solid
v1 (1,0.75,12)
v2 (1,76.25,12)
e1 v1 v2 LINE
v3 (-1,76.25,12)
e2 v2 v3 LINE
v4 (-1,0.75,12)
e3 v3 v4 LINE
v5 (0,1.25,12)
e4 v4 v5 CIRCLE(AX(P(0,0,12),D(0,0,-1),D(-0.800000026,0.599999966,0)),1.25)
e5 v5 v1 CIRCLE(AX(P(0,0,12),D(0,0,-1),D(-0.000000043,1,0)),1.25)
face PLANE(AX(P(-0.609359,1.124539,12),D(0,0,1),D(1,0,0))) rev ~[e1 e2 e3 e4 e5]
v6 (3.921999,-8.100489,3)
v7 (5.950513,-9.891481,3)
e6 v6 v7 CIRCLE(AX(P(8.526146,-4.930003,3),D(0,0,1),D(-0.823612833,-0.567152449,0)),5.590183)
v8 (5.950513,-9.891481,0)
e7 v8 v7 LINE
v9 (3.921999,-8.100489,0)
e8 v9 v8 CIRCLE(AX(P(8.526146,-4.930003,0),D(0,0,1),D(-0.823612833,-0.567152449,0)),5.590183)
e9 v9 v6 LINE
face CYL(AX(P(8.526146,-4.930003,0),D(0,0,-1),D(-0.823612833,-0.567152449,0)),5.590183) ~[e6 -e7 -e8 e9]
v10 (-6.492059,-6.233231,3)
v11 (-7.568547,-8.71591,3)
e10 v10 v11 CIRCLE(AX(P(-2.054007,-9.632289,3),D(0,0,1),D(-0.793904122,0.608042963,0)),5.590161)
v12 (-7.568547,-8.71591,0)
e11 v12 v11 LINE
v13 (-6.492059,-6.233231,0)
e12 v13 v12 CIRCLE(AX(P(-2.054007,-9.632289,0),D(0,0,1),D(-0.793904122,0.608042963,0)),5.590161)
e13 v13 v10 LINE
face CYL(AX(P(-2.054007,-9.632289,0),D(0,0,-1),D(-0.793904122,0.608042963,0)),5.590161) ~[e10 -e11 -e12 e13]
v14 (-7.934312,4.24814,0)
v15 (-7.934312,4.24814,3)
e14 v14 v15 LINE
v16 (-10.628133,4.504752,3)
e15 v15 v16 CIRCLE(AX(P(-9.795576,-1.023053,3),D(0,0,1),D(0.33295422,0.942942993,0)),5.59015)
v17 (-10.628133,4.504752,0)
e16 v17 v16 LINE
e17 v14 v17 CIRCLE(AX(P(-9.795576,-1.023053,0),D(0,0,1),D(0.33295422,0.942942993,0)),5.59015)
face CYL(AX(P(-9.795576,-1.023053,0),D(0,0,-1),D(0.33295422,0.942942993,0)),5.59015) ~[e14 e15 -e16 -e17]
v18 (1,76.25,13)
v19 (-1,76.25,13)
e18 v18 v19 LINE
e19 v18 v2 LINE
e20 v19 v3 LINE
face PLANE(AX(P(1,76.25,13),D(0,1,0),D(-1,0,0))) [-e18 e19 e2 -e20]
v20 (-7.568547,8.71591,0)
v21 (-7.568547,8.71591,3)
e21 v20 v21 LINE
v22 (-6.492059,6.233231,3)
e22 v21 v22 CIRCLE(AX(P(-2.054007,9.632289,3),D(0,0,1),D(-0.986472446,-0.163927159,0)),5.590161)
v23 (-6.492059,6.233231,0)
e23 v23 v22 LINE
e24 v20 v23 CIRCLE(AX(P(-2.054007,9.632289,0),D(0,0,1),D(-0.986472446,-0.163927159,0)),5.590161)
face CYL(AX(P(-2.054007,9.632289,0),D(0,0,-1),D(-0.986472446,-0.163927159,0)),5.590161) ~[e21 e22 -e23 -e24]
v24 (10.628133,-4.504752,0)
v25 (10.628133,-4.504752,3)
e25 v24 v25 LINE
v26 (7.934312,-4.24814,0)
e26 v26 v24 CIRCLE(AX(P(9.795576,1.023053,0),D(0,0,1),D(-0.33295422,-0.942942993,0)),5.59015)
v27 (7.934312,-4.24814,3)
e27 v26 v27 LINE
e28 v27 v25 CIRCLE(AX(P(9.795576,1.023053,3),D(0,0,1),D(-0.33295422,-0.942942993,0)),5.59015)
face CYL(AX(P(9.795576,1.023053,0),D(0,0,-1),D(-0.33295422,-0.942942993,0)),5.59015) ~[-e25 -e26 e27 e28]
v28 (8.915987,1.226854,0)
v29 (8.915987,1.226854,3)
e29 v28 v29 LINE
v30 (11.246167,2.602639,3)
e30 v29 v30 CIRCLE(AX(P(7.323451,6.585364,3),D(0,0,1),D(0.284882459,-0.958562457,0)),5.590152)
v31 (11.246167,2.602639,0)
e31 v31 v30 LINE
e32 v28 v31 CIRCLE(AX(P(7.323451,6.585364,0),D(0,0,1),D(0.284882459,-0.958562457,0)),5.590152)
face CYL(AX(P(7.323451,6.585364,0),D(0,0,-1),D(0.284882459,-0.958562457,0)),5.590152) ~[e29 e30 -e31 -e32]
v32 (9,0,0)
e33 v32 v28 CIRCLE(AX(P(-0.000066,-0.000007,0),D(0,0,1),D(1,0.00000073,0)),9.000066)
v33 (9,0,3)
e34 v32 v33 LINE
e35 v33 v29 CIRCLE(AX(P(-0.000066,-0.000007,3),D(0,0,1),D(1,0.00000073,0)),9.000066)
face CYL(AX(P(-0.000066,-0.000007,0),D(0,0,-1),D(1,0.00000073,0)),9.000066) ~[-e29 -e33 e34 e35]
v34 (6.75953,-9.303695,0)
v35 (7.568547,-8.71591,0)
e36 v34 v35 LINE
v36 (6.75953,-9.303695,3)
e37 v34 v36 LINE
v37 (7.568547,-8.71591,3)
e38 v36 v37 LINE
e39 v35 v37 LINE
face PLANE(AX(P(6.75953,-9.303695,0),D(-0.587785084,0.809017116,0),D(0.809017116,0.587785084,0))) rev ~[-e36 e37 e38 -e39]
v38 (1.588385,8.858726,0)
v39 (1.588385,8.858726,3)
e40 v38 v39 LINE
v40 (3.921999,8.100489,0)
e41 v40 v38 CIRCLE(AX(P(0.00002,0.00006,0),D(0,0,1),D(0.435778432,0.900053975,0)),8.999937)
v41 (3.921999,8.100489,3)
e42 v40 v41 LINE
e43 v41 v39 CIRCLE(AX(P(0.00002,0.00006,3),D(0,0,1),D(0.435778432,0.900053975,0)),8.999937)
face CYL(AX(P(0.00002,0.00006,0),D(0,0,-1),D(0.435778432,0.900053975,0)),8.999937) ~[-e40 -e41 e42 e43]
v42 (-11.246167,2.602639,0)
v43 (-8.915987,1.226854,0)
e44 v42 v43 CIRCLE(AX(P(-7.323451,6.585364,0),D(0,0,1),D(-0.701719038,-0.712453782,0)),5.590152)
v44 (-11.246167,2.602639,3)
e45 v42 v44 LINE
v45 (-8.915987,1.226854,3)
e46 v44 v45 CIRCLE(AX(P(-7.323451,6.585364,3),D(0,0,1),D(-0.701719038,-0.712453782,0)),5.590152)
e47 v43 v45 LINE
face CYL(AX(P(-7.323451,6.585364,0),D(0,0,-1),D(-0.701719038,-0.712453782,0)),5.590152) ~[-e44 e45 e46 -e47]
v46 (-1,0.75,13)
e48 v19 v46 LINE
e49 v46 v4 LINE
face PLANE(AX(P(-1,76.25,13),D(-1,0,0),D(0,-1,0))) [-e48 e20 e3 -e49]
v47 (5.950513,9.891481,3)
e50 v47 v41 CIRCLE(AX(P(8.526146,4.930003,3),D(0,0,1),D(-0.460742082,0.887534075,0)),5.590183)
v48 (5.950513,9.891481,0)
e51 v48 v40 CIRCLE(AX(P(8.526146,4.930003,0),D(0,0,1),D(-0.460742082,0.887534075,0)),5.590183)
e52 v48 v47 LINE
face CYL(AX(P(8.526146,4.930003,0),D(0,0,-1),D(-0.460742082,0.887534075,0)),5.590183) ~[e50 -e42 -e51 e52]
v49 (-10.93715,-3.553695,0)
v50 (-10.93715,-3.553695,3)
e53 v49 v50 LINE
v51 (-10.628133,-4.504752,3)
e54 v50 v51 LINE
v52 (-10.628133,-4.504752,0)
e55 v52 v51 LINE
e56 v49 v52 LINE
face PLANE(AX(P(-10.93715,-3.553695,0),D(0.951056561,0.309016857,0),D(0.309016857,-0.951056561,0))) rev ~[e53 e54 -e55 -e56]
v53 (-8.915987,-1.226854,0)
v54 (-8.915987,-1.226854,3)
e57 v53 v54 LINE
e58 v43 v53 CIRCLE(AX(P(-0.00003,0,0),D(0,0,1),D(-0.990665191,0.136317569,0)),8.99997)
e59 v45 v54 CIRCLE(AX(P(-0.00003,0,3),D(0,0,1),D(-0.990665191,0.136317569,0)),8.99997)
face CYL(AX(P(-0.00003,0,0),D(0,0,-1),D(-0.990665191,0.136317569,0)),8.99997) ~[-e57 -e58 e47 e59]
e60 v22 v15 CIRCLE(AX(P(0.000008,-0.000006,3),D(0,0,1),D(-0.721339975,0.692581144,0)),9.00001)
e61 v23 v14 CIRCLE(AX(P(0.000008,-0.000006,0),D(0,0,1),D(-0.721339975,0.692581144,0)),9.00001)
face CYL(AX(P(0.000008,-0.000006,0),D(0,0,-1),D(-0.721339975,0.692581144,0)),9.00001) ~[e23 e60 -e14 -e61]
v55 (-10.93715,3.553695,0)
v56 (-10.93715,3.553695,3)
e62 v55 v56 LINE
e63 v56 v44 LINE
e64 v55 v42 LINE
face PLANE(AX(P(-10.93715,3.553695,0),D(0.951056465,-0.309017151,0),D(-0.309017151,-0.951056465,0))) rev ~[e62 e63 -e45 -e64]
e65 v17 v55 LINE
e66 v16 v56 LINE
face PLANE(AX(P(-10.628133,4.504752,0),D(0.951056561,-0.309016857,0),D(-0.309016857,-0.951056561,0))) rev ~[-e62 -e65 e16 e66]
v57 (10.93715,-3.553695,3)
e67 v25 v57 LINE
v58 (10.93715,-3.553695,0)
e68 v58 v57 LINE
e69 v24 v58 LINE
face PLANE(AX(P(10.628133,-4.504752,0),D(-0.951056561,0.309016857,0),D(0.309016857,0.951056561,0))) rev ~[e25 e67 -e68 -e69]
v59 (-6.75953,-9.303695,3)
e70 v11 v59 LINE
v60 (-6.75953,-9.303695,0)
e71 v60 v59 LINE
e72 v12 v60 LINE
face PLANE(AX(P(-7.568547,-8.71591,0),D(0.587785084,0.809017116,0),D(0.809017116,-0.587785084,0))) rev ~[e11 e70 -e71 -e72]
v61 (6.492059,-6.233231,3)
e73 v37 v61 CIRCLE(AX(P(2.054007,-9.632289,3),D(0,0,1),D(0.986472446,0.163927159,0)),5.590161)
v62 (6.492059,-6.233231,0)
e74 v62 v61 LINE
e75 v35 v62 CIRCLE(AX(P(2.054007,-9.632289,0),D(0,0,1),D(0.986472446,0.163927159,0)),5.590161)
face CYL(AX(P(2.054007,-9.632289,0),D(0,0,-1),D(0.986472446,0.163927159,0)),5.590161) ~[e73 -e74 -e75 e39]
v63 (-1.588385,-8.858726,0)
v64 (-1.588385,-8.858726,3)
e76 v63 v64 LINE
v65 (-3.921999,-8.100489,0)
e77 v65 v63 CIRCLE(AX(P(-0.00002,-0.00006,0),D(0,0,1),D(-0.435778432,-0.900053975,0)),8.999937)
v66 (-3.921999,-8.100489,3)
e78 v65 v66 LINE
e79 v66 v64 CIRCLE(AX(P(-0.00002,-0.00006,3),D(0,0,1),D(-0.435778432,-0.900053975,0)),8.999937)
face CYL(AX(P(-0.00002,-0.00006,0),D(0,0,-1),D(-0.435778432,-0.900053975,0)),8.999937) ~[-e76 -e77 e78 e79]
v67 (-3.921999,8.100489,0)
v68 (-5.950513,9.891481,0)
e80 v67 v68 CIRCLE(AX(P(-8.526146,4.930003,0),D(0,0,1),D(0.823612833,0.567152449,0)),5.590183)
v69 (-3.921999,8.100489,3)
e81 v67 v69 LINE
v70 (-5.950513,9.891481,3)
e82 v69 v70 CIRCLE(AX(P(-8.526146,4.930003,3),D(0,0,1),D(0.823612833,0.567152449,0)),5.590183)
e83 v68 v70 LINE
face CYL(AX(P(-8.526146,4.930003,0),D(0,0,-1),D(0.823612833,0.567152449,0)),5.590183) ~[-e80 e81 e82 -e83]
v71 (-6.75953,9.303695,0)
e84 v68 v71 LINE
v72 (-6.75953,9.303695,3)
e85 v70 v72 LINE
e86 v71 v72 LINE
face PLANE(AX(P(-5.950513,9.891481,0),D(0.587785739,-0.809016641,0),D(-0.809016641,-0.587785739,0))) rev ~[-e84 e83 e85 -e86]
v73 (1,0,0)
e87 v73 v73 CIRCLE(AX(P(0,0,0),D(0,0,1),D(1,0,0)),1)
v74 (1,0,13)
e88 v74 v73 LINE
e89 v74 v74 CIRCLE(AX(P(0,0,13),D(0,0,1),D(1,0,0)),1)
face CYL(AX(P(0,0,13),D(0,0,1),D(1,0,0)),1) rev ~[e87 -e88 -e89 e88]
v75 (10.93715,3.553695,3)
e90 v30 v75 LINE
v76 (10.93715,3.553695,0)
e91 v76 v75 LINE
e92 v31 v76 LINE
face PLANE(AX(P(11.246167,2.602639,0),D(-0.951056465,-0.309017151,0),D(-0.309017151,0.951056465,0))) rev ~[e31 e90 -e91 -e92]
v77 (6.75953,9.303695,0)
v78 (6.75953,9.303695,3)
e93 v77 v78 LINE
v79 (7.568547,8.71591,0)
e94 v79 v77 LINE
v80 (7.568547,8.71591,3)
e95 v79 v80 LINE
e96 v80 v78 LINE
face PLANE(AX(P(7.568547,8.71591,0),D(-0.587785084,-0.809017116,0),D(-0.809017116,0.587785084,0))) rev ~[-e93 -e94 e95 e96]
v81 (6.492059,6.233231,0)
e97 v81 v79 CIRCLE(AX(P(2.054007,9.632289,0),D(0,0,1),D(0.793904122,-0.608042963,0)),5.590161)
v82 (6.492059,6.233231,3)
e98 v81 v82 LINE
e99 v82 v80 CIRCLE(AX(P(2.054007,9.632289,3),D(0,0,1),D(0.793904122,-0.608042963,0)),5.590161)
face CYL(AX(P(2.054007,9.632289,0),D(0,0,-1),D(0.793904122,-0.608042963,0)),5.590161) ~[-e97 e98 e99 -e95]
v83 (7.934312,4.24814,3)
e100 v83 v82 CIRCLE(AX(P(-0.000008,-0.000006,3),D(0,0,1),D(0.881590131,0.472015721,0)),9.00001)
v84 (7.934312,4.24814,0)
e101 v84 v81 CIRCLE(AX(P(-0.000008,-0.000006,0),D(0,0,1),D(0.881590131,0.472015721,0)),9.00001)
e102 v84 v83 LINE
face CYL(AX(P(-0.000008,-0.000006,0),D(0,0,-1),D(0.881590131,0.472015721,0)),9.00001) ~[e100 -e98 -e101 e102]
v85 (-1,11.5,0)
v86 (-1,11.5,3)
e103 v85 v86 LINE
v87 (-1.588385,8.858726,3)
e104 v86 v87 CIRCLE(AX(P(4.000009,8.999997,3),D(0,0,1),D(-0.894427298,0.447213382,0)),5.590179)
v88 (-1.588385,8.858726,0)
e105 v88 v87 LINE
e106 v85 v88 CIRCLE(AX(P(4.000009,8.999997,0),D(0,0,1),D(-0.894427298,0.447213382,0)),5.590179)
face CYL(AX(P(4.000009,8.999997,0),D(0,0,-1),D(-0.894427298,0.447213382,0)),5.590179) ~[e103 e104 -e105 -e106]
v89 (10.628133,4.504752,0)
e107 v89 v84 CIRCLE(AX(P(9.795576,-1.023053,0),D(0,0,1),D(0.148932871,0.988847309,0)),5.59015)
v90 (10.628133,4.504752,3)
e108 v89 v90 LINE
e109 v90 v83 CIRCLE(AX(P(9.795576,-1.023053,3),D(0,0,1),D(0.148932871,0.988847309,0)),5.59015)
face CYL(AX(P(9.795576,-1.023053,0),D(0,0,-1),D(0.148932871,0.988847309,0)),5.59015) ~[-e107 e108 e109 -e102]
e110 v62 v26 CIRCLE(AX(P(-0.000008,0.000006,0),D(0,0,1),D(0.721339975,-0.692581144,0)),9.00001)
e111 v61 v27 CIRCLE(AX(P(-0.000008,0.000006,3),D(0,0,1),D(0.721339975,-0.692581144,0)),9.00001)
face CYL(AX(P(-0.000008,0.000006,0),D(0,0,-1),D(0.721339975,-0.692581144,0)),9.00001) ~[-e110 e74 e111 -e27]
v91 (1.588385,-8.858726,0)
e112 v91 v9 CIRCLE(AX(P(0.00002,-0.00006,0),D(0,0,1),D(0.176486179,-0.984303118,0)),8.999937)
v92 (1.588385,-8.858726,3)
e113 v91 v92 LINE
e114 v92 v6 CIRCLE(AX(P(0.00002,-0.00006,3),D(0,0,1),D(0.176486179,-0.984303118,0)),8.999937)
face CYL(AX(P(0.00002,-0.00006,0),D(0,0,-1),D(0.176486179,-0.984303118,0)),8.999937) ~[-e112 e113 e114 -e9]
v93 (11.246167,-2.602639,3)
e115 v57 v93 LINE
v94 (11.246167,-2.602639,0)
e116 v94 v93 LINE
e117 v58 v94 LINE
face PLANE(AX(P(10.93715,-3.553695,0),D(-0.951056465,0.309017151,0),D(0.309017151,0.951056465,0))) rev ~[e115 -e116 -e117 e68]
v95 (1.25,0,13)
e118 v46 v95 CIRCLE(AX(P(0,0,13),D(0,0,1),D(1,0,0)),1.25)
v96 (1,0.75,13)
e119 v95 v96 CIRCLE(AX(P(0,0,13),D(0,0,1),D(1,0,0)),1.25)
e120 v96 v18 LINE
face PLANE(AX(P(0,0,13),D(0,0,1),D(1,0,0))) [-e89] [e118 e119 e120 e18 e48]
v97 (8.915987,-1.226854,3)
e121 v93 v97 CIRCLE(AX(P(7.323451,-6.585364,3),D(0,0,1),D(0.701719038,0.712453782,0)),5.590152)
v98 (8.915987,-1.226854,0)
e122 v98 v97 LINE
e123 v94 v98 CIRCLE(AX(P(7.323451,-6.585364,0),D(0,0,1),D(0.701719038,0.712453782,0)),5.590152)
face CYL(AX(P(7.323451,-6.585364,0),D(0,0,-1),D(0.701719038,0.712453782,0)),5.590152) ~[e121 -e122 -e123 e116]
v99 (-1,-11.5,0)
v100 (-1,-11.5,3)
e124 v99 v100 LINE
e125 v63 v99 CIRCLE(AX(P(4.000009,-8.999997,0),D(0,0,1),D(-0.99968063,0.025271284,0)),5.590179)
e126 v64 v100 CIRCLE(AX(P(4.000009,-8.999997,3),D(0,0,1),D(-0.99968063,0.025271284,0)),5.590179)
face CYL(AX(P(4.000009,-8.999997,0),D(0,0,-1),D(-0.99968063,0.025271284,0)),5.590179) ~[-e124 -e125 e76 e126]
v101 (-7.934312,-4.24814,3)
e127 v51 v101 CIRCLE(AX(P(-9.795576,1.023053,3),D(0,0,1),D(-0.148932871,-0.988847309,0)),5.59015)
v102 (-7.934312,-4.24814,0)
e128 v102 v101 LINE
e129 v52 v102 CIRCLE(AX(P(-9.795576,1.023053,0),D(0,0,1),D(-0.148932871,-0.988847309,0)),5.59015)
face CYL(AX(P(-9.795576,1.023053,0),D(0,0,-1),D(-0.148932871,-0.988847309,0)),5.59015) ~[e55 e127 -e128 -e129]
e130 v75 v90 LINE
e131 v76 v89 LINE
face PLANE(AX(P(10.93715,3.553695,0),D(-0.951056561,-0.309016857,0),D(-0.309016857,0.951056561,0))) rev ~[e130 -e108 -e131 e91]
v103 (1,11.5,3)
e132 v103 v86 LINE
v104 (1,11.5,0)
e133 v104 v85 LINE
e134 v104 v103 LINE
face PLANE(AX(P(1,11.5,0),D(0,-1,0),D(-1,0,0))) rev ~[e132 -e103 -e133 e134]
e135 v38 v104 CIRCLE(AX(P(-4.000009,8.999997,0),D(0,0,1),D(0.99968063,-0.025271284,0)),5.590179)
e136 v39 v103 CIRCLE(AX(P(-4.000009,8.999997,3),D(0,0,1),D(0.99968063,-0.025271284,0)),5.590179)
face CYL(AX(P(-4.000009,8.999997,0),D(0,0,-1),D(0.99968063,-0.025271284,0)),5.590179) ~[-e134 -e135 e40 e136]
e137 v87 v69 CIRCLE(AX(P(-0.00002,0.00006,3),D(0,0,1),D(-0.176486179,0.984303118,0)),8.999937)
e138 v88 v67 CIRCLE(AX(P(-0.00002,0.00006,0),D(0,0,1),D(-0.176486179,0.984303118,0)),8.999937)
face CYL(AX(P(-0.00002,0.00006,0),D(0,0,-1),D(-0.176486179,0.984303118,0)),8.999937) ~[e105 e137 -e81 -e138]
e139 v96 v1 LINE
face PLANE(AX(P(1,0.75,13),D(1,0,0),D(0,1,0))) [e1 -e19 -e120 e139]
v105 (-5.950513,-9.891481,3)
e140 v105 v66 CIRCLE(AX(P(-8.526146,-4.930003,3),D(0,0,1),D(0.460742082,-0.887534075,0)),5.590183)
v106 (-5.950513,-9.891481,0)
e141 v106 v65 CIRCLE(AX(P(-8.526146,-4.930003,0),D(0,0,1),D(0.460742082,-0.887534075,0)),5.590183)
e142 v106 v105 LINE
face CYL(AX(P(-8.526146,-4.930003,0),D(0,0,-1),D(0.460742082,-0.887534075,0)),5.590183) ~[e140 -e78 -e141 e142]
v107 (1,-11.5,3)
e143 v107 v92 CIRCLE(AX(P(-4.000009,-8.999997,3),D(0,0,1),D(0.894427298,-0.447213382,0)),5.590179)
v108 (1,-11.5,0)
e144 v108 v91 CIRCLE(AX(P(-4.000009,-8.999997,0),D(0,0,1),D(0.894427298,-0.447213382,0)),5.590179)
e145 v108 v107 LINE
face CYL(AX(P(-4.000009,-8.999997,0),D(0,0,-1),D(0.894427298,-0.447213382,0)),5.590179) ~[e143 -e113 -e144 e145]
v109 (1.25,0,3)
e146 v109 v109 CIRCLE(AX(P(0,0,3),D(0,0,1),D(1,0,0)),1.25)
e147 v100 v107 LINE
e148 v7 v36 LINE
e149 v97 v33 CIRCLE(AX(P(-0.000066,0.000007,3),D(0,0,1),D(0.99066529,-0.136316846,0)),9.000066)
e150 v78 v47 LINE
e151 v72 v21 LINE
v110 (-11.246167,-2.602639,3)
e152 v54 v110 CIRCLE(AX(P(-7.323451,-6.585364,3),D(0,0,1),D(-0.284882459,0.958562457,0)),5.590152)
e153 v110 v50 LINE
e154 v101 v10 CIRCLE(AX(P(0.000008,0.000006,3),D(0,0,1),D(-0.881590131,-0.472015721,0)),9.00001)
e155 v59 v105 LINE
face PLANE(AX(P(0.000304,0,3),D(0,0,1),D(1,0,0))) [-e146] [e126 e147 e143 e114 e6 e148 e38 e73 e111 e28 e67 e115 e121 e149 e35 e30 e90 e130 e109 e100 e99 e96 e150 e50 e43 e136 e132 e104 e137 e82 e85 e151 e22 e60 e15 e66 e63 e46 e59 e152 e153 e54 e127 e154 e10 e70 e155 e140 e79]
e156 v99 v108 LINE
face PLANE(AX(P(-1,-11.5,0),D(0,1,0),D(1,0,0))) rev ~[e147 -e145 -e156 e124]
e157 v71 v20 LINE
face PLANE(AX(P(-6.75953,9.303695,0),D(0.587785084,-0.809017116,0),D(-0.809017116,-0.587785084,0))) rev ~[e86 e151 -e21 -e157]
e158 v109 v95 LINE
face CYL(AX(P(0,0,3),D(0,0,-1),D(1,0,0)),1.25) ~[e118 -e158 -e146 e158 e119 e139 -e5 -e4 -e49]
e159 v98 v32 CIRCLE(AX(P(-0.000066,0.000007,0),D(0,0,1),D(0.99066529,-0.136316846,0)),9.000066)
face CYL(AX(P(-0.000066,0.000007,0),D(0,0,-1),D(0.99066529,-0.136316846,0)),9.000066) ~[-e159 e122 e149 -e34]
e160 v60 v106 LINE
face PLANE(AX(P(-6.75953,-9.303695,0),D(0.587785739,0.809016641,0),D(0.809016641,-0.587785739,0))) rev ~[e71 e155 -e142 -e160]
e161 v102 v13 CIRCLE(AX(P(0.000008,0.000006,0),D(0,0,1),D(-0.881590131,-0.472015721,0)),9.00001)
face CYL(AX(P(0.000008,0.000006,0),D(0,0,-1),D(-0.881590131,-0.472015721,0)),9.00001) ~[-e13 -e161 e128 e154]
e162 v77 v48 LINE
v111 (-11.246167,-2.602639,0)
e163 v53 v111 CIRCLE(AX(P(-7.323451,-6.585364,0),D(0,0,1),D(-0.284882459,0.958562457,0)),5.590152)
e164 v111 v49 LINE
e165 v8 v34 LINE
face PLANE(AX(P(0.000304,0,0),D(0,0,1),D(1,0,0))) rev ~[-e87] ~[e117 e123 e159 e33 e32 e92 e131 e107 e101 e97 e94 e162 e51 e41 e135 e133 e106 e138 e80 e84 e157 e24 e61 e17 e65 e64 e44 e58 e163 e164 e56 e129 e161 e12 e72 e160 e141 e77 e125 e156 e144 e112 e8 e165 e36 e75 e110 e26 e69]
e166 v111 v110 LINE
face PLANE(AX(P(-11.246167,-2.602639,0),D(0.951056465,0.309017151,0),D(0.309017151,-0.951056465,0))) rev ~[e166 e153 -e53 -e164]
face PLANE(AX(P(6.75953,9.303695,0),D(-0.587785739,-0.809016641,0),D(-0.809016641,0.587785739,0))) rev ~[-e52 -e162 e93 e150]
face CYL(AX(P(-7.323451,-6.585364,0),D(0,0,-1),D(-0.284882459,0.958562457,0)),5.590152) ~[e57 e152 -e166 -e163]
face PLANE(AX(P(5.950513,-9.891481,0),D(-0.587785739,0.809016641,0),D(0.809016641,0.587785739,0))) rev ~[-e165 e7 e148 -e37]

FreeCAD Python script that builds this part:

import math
import FreeCAD as App
import Part
import Sketcher

V = App.Vector
Q = App.Units.Quantity

doc = App.newDocument("Part")
body = doc.addObject("PartDesign::Body", "Body")

# Sketch on XY plane
sketch1 = doc.addObject("Sketcher::SketchObject", "Sketch")
body.addObject(sketch1)
sketch1.AttachmentSupport = (doc.XY_Plane, [""])
sketch1.MapMode = "FlatFace"
sketch1.addGeometry(Part.ArcOfCircle(Part.Circle(V(-0.000066, 0.000007, 0), V(0, 0, 1), 9.000066), math.radians(-7.834774), math.radians(-0.000042)), False)
sketch1.addGeometry(Part.ArcOfCircle(Part.Circle(V(-0.000066, -0.000007, 0), V(0, 0, 1), 9.000066), math.radians(0.000042), math.radians(7.834774)), False)
sketch1.addGeometry(Part.ArcOfCircle(Part.Circle(V(7.323451, 6.585364, 0), V(0, 0, 1), 5.590152), math.radians(-73.448177), math.radians(-45.434914)), False)
sketch1.addGeometry(Part.LineSegment(V(11.246167, 2.602639, 0), V(10.93715, 3.553695, 0)), False)
sketch1.addGeometry(Part.LineSegment(V(10.93715, 3.553695, 0), V(10.628133, 4.504752, 0)), False)
sketch1.addGeometry(Part.ArcOfCircle(Part.Circle(V(9.795576, -1.023053, 0), V(0, 0, 1), 5.59015), math.radians(81.43491), math.radians(109.448183)), False)
sketch1.addGeometry(Part.ArcOfCircle(Part.Circle(V(-0.000008, -0.000006, 0), V(0, 0, 1), 9.00001), math.radians(28.165221), math.radians(43.834778)), False)
sketch1.addGeometry(Part.ArcOfCircle(Part.Circle(V(2.054007, 9.632289, 0), V(0, 0, 1), 5.590161), math.radians(-37.448131), math.radians(-9.434917)), False)
sketch1.addGeometry(Part.LineSegment(V(7.568547, 8.71591, 0), V(6.75953, 9.303695, 0)), False)
sketch1.addGeometry(Part.LineSegment(V(6.75953, 9.303695, 0), V(5.950513, 9.891481, 0)), False)
sketch1.addGeometry(Part.ArcOfCircle(Part.Circle(V(8.526146, 4.930003, 0), V(0, 0, 1), 5.590183), math.radians(117.435003), math.radians(145.448105)), False)
sketch1.addGeometry(Part.ArcOfCircle(Part.Circle(V(0.00002, 0.00006, 0), V(0, 0, 1), 8.999937), math.radians(64.165163), math.radians(79.834844)), False)
sketch1.addGeometry(Part.ArcOfCircle(Part.Circle(V(-4.000009, 8.999997, 0), V(0, 0, 1), 5.590179), math.radians(-1.448092), math.radians(26.565037)), False)
sketch1.addGeometry(Part.LineSegment(V(1, 11.5, 0), V(-1, 11.5, 0)), False)
sketch1.addGeometry(Part.ArcOfCircle(Part.Circle(V(4.000009, 8.999997, 0), V(0, 0, 1), 5.590179), math.radians(153.434963), math.radians(181.448092)), False)
sketch1.addGeometry(Part.ArcOfCircle(Part.Circle(V(-0.00002, 0.00006, 0), V(0, 0, 1), 8.999937), math.radians(100.165156), math.radians(115.834837)), False)
sketch1.addGeometry(Part.ArcOfCircle(Part.Circle(V(-8.526146, 4.930003, 0), V(0, 0, 1), 5.590183), math.radians(34.551895), math.radians(62.564997)), False)
sketch1.addGeometry(Part.LineSegment(V(-5.950513, 9.891481, 0), V(-6.75953, 9.303695, 0)), False)
sketch1.addGeometry(Part.LineSegment(V(-6.75953, 9.303695, 0), V(-7.568547, 8.71591, 0)), False)
sketch1.addGeometry(Part.ArcOfCircle(Part.Circle(V(-2.054007, 9.632289, 0), V(0, 0, 1), 5.590161), math.radians(-170.565083), math.radians(-142.551869)), False)
sketch1.addGeometry(Part.ArcOfCircle(Part.Circle(V(0.000008, -0.000006, 0), V(0, 0, 1), 9.00001), math.radians(136.165222), math.radians(151.834779)), False)
sketch1.addGeometry(Part.ArcOfCircle(Part.Circle(V(-9.795576, -1.023053, 0), V(0, 0, 1), 5.59015), math.radians(70.551817), math.radians(98.56509)), False)
sketch1.addGeometry(Part.LineSegment(V(-10.628133, 4.504752, 0), V(-10.93715, 3.553695, 0)), False)
sketch1.addGeometry(Part.LineSegment(V(-10.93715, 3.553695, 0), V(-11.246167, 2.602639, 0)), False)
sketch1.addGeometry(Part.ArcOfCircle(Part.Circle(V(-7.323451, 6.585364, 0), V(0, 0, 1), 5.590152), math.radians(-134.565086), math.radians(-106.551823)), False)
sketch1.addGeometry(Part.ArcOfCircle(Part.Circle(V(-0.00003, 0, 0), V(0, 0, 1), 8.99997), math.radians(172.165185), math.radians(187.834815)), False)
sketch1.addGeometry(Part.ArcOfCircle(Part.Circle(V(-7.323451, -6.585364, 0), V(0, 0, 1), 5.590152), math.radians(106.551823), math.radians(134.565086)), False)
sketch1.addGeometry(Part.LineSegment(V(-11.246167, -2.602639, 0), V(-10.93715, -3.553695, 0)), False)
sketch1.addGeometry(Part.LineSegment(V(-10.93715, -3.553695, 0), V(-10.628133, -4.504752, 0)), False)
sketch1.addGeometry(Part.ArcOfCircle(Part.Circle(V(-9.795576, 1.023053, 0), V(0, 0, 1), 5.59015), math.radians(-98.56509), math.radians(-70.551817)), False)
sketch1.addGeometry(Part.ArcOfCircle(Part.Circle(V(0.000008, 0.000006, 0), V(0, 0, 1), 9.00001), math.radians(-151.834779), math.radians(-136.165222)), False)
sketch1.addGeometry(Part.ArcOfCircle(Part.Circle(V(-2.054007, -9.632289, 0), V(0, 0, 1), 5.590161), math.radians(142.551869), math.radians(170.565083)), False)
sketch1.addGeometry(Part.LineSegment(V(-7.568547, -8.71591, 0), V(-6.75953, -9.303695, 0)), False)
sketch1.addGeometry(Part.LineSegment(V(-6.75953, -9.303695, 0), V(-5.950513, -9.891481, 0)), False)
sketch1.addGeometry(Part.ArcOfCircle(Part.Circle(V(-8.526146, -4.930003, 0), V(0, 0, 1), 5.590183), math.radians(-62.564997), math.radians(-34.551895)), False)
sketch1.addGeometry(Part.ArcOfCircle(Part.Circle(V(-0.00002, -0.00006, 0), V(0, 0, 1), 8.999937), math.radians(-115.834837), math.radians(-100.165156)), False)
sketch1.addGeometry(Part.ArcOfCircle(Part.Circle(V(4.000009, -8.999997, 0), V(0, 0, 1), 5.590179), math.radians(178.551908), math.radians(206.565037)), False)
sketch1.addGeometry(Part.LineSegment(V(-1, -11.5, 0), V(1, -11.5, 0)), False)
sketch1.addGeometry(Part.ArcOfCircle(Part.Circle(V(-4.000009, -8.999997, 0), V(0, 0, 1), 5.590179), math.radians(-26.565037), math.radians(1.448092)), False)
sketch1.addGeometry(Part.ArcOfCircle(Part.Circle(V(0.00002, -0.00006, 0), V(0, 0, 1), 8.999937), math.radians(-79.834844), math.radians(-64.165163)), False)
sketch1.addGeometry(Part.ArcOfCircle(Part.Circle(V(8.526146, -4.930003, 0), V(0, 0, 1), 5.590183), math.radians(-145.448105), math.radians(-117.435003)), False)
sketch1.addGeometry(Part.LineSegment(V(5.950513, -9.891481, 0), V(6.75953, -9.303695, 0)), False)
sketch1.addGeometry(Part.LineSegment(V(6.75953, -9.303695, 0), V(7.568547, -8.71591, 0)), False)
sketch1.addGeometry(Part.ArcOfCircle(Part.Circle(V(2.054007, -9.632289, 0), V(0, 0, 1), 5.590161), math.radians(9.434917), math.radians(37.448131)), False)
sketch1.addGeometry(Part.ArcOfCircle(Part.Circle(V(-0.000008, 0.000006, 0), V(0, 0, 1), 9.00001), math.radians(-43.834778), math.radians(-28.165221)), False)
sketch1.addGeometry(Part.ArcOfCircle(Part.Circle(V(9.795576, 1.023053, 0), V(0, 0, 1), 5.59015), math.radians(-109.448183), math.radians(-81.43491)), False)
sketch1.addGeometry(Part.LineSegment(V(10.628133, -4.504752, 0), V(10.93715, -3.553695, 0)), False)
sketch1.addGeometry(Part.LineSegment(V(10.93715, -3.553695, 0), V(11.246167, -2.602639, 0)), False)
sketch1.addGeometry(Part.ArcOfCircle(Part.Circle(V(7.323451, -6.585364, 0), V(0, 0, 1), 5.590152), math.radians(45.434914), math.radians(73.448177)), False)
sketch1.addConstraint(Sketcher.Constraint("Tangent", 0, 2, 1, 1))
sketch1.addConstraint(Sketcher.Constraint("Coincident", 1, 2, 2, 1))
sketch1.addConstraint(Sketcher.Constraint("Coincident", 2, 2, 3, 1))
sketch1.addConstraint(Sketcher.Constraint("Coincident", 3, 2, 4, 1))
sketch1.addConstraint(Sketcher.Constraint("Coincident", 4, 2, 5, 1))
sketch1.addConstraint(Sketcher.Constraint("Coincident", 5, 2, 6, 1))
sketch1.addConstraint(Sketcher.Constraint("Coincident", 6, 2, 7, 1))
sketch1.addConstraint(Sketcher.Constraint("Coincident", 7, 2, 8, 1))
sketch1.addConstraint(Sketcher.Constraint("Coincident", 8, 2, 9, 1))
sketch1.addConstraint(Sketcher.Constraint("Coincident", 9, 2, 10, 1))
sketch1.addConstraint(Sketcher.Constraint("Coincident", 10, 2, 11, 1))
sketch1.addConstraint(Sketcher.Constraint("Coincident", 11, 2, 12, 1))
sketch1.addConstraint(Sketcher.Constraint("Coincident", 12, 2, 13, 1))
sketch1.addConstraint(Sketcher.Constraint("Coincident", 13, 2, 14, 1))
sketch1.addConstraint(Sketcher.Constraint("Coincident", 14, 2, 15, 1))
sketch1.addConstraint(Sketcher.Constraint("Coincident", 15, 2, 16, 1))
sketch1.addConstraint(Sketcher.Constraint("Coincident", 16, 2, 17, 1))
sketch1.addConstraint(Sketcher.Constraint("Coincident", 17, 2, 18, 1))
sketch1.addConstraint(Sketcher.Constraint("Coincident", 18, 2, 19, 1))
sketch1.addConstraint(Sketcher.Constraint("Coincident", 19, 2, 20, 1))
sketch1.addConstraint(Sketcher.Constraint("Coincident", 20, 2, 21, 1))
sketch1.addConstraint(Sketcher.Constraint("Coincident", 21, 2, 22, 1))
sketch1.addConstraint(Sketcher.Constraint("Coincident", 22, 2, 23, 1))
sketch1.addConstraint(Sketcher.Constraint("Coincident", 23, 2, 24, 1))
sketch1.addConstraint(Sketcher.Constraint("Coincident", 24, 2, 25, 1))
sketch1.addConstraint(Sketcher.Constraint("Coincident", 25, 2, 26, 1))
sketch1.addConstraint(Sketcher.Constraint("Coincident", 26, 2, 27, 1))
sketch1.addConstraint(Sketcher.Constraint("Coincident", 27, 2, 28, 1))
sketch1.addConstraint(Sketcher.Constraint("Coincident", 28, 2, 29, 1))
sketch1.addConstraint(Sketcher.Constraint("Coincident", 29, 2, 30, 1))
sketch1.addConstraint(Sketcher.Constraint("Coincident", 30, 2, 31, 1))
sketch1.addConstraint(Sketcher.Constraint("Coincident", 31, 2, 32, 1))
sketch1.addConstraint(Sketcher.Constraint("Coincident", 32, 2, 33, 1))
sketch1.addConstraint(Sketcher.Constraint("Coincident", 33, 2, 34, 1))
sketch1.addConstraint(Sketcher.Constraint("Coincident", 34, 2, 35, 1))
sketch1.addConstraint(Sketcher.Constraint("Coincident", 35, 2, 36, 1))
sketch1.addConstraint(Sketcher.Constraint("Coincident", 36, 2, 37, 1))
sketch1.addConstraint(Sketcher.Constraint("Coincident", 37, 2, 38, 1))
sketch1.addConstraint(Sketcher.Constraint("Coincident", 38, 2, 39, 1))
sketch1.addConstraint(Sketcher.Constraint("Coincident", 39, 2, 40, 1))
sketch1.addConstraint(Sketcher.Constraint("Coincident", 40, 2, 41, 1))
sketch1.addConstraint(Sketcher.Constraint("Coincident", 41, 2, 42, 1))
sketch1.addConstraint(Sketcher.Constraint("Coincident", 42, 2, 43, 1))
sketch1.addConstraint(Sketcher.Constraint("Coincident", 43, 2, 44, 1))
sketch1.addConstraint(Sketcher.Constraint("Coincident", 44, 2, 45, 1))
sketch1.addConstraint(Sketcher.Constraint("Coincident", 45, 2, 46, 1))
sketch1.addConstraint(Sketcher.Constraint("Coincident", 46, 2, 47, 1))
sketch1.addConstraint(Sketcher.Constraint("Coincident", 47, 2, 48, 1))
sketch1.addConstraint(Sketcher.Constraint("Coincident", 48, 2, 0, 1))
sketch1.addConstraint(Sketcher.Constraint("Horizontal", 13))
sketch1.addConstraint(Sketcher.Constraint("Horizontal", 37))
sketch1.addConstraint(Sketcher.Constraint("Equal", 0, 1))
sketch1.addConstraint(Sketcher.Constraint("Equal", 12, 14))
sketch1.addConstraint(Sketcher.Constraint("Equal", 11, 15))
sketch1.addConstraint(Sketcher.Constraint("Equal", 10, 16))
sketch1.addConstraint(Sketcher.Constraint("Equal", 7, 19))
sketch1.addConstraint(Sketcher.Constraint("Equal", 6, 20))
sketch1.addConstraint(Sketcher.Constraint("Equal", 5, 21))
sketch1.addConstraint(Sketcher.Constraint("Equal", 2, 24))
sketch1.addConstraint(Sketcher.Constraint("Equal", 24, 26))
sketch1.addConstraint(Sketcher.Constraint("Equal", 21, 29))
sketch1.addConstraint(Sketcher.Constraint("Equal", 20, 30))
sketch1.addConstraint(Sketcher.Constraint("Equal", 19, 31))
sketch1.addConstraint(Sketcher.Constraint("Equal", 16, 34))
sketch1.addConstraint(Sketcher.Constraint("Equal", 15, 35))
sketch1.addConstraint(Sketcher.Constraint("Equal", 14, 36))
sketch1.addConstraint(Sketcher.Constraint("Equal", 36, 38))
sketch1.addConstraint(Sketcher.Constraint("Equal", 35, 39))
sketch1.addConstraint(Sketcher.Constraint("Equal", 34, 40))
sketch1.addConstraint(Sketcher.Constraint("Equal", 31, 43))
sketch1.addConstraint(Sketcher.Constraint("Equal", 30, 44))
sketch1.addConstraint(Sketcher.Constraint("Equal", 29, 45))
sketch1.addConstraint(Sketcher.Constraint("Equal", 26, 48))
sketch1.addConstraint(Sketcher.Constraint("Symmetric", 2, 3, 26, 3, -1, 1))
sketch1.addConstraint(Sketcher.Constraint("Symmetric", 5, 3, 29, 3, -1, 1))
sketch1.addConstraint(Sketcher.Constraint("Symmetric", 6, 3, 30, 3, -1, 1))
sketch1.addConstraint(Sketcher.Constraint("Symmetric", 7, 3, 31, 3, -1, 1))
sketch1.addConstraint(Sketcher.Constraint("Symmetric", 10, 3, 34, 3, -1, 1))
sketch1.addConstraint(Sketcher.Constraint("Symmetric", 11, 3, 35, 3, -1, 1))
sketch1.addConstraint(Sketcher.Constraint("Symmetric", 12, 3, 36, 3, -1, 1))
sketch1.addConstraint(Sketcher.Constraint("Symmetric", 14, 3, 38, 3, -1, 1))
sketch1.addConstraint(Sketcher.Constraint("Symmetric", 15, 3, 39, 3, -1, 1))
sketch1.addConstraint(Sketcher.Constraint("Symmetric", 16, 3, 40, 3, -1, 1))
sketch1.addConstraint(Sketcher.Constraint("Symmetric", 19, 3, 43, 3, -1, 1))
sketch1.addConstraint(Sketcher.Constraint("Symmetric", 20, 3, 44, 3, -1, 1))
sketch1.addConstraint(Sketcher.Constraint("Symmetric", 21, 3, 45, 3, -1, 1))
sketch1.addConstraint(Sketcher.Constraint("Symmetric", 24, 3, 48, 3, -1, 1))
sketch1.addConstraint(Sketcher.Constraint("Symmetric", 3, 2, 27, 2, -1, 1))
sketch1.addConstraint(Sketcher.Constraint("Symmetric", 8, 2, 32, 2, -1, 1))
sketch1.addConstraint(Sketcher.Constraint("Symmetric", 17, 2, 41, 2, -1, 1))
sketch1.addConstraint(Sketcher.Constraint("Symmetric", 22, 2, 46, 2, -1, 1))
sketch1.addConstraint(Sketcher.Constraint("Symmetric", 12, 3, 14, 3, -2))
sketch1.addConstraint(Sketcher.Constraint("Symmetric", 11, 3, 15, 3, -2))
sketch1.addConstraint(Sketcher.Constraint("Symmetric", 10, 3, 16, 3, -2))
sketch1.addConstraint(Sketcher.Constraint("Symmetric", 7, 3, 19, 3, -2))
sketch1.addConstraint(Sketcher.Constraint("Symmetric", 6, 3, 20, 3, -2))
sketch1.addConstraint(Sketcher.Constraint("Symmetric", 5, 3, 21, 3, -2))
sketch1.addConstraint(Sketcher.Constraint("Symmetric", 2, 3, 24, 3, -2))
sketch1.addConstraint(Sketcher.Constraint("Symmetric", 8, 2, 17, 2, -2))
sketch1.addConstraint(Sketcher.Constraint("Symmetric", 3, 2, 22, 2, -2))
sketch1.addConstraint(Sketcher.Constraint("PointOnObject", 25, 3, -1))
sketch1.addConstraint(Sketcher.Constraint("PointOnObject", 0, 2, -1))
sketch1.addConstraint(Sketcher.Constraint("Parallel", 3, 4))
sketch1.addConstraint(Sketcher.Constraint("Parallel", 8, 9))
sketch1.addConstraint(Sketcher.Constraint("Parallel", 17, 18))
sketch1.addConstraint(Sketcher.Constraint("Parallel", 22, 23))
sketch1.addConstraint(Sketcher.Constraint("Parallel", 4, 27))
sketch1.addConstraint(Sketcher.Constraint("Parallel", 27, 28))
sketch1.addConstraint(Sketcher.Constraint("Parallel", 9, 32))
sketch1.addConstraint(Sketcher.Constraint("Parallel", 32, 33))
sketch1.addConstraint(Sketcher.Constraint("Parallel", 18, 41))
sketch1.addConstraint(Sketcher.Constraint("Parallel", 41, 42))
sketch1.addConstraint(Sketcher.Constraint("Parallel", 23, 46))
sketch1.addConstraint(Sketcher.Constraint("Parallel", 46, 47))
sketch1.addConstraint(Sketcher.Constraint("Horizontal", 1, 3, 6, 3))
sketch1.addConstraint(Sketcher.Constraint("Horizontal", 0, 3, 30, 3))
sketch1.addConstraint(Sketcher.Constraint("Horizontal", 9, 2, 16, 2))
sketch1.addConstraint(Sketcher.Constraint("Horizontal", 4, 2, 21, 2))
sketch1.addConstraint(Sketcher.Constraint("Horizontal", 1, 2, 24, 2))
sketch1.addConstraint(Sketcher.Constraint("Vertical", 13, 2, 36, 2))
sketch1.addConstraint(Sketcher.Constraint("Equal", 3, 4))
sketch1.addConstraint(Sketcher.Constraint("Equal", 4, 8))
sketch1.addConstraint(Sketcher.Constraint("Equal", 8, 9))
sketch1.addConstraint(Sketcher.Constraint("DistanceX", 13, 2, 13, 1, 2.0))
sketch1.addConstraint(Sketcher.Constraint("Angle", 3, Q("108.000009 deg")))
sketch1.addConstraint(Sketcher.Constraint("Angle", 8, Q("144.000012 deg")))
sketch1.addConstraint(Sketcher.Constraint("Distance", 3, 1.0))
sketch1.addConstraint(Sketcher.Constraint("DistanceX", -1, 1, 0, 2, 9.0))
sketch1.addConstraint(Sketcher.Constraint("DistanceY", -1, 1, 12, 2, 11.5))
sketch1.addConstraint(Sketcher.Constraint("Radius", 5, 5.59015))
sketch1.addConstraint(Sketcher.Constraint("Radius", 6, 9.00001))
sketch1.addConstraint(Sketcher.Constraint("Radius", 7, 5.590161))
sketch1.addConstraint(Sketcher.Constraint("Radius", 12, 5.590179))
sketch1.addConstraint(Sketcher.Constraint("Radius", 25, 8.99997))
sketch1.addConstraint(Sketcher.Constraint("DistanceX", -1, 1, 10, 2, 3.921999))
sketch1.addConstraint(Sketcher.Constraint("Radius", 0, 9.000066))
sketch1.addConstraint(Sketcher.Constraint("Radius", 2, 5.590152))
sketch1.addConstraint(Sketcher.Constraint("Radius", 10, 5.590183))
sketch1.addConstraint(Sketcher.Constraint("Radius", 11, 8.999937))
sketch1.addConstraint(Sketcher.Constraint("DistanceX", -1, 1, 2, 3, 7.323451))
sketch1.addConstraint(Sketcher.Constraint("DistanceY", -1, 1, 7, 3, 9.632289))
sketch1.addConstraint(Sketcher.Constraint("DistanceX", 12, 3, -1, 1, 4.000009))
sketch1.addConstraint(Sketcher.Constraint("DistanceY", -1, 1, 2, 2, 2.602639))
sketch1.addConstraint(Sketcher.Constraint("DistanceX", -1, 1, 3, 2, 10.93715))
sketch1.addConstraint(Sketcher.Constraint("DistanceX", -1, 1, 5, 2, 7.934312))
sketch1.addConstraint(Sketcher.Constraint("DistanceY", -1, 1, 5, 2, 4.24814))
sketch1.addConstraint(Sketcher.Constraint("DistanceX", -1, 1, 6, 2, 6.492059))
sketch1.addConstraint(Sketcher.Constraint("DistanceY", -1, 1, 7, 2, 8.71591))
sketch1.addConstraint(Sketcher.Constraint("DistanceY", -1, 1, 10, 2, 8.100489))
sketch1.addConstraint(Sketcher.Constraint("DistanceY", -1, 1, 11, 2, 8.858726))
pad1 = doc.addObject("PartDesign::Pad", "Pad")
body.addObject(pad1)
pad1.Profile = sketch1
pad1.Length = 3

# Sketch on XY plane
sketch2 = doc.addObject("Sketcher::SketchObject", "Sketch001")
body.addObject(sketch2)
sketch2.AttachmentSupport = (doc.XY_Plane, [""])
sketch2.MapMode = "FlatFace"
sketch2.AttachmentOffset = App.Placement(V(0, 0, 3), App.Rotation())
sketch2.addGeometry(Part.Circle(V(0, 0, 0), V(0, 0, 1), 1.25), False)
sketch2.addConstraint(Sketcher.Constraint("Coincident", 0, 3, -1, 1))
sketch2.addConstraint(Sketcher.Constraint("Diameter", 0, 2.5))
pad2 = doc.addObject("PartDesign::Pad", "Pad001")
body.addObject(pad2)
pad2.Profile = sketch2
pad2.Length = 10

# Sketch on XY plane
sketch3 = doc.addObject("Sketcher::SketchObject", "Sketch002")
body.addObject(sketch3)
sketch3.AttachmentSupport = (doc.XY_Plane, [""])
sketch3.MapMode = "FlatFace"
sketch3.AttachmentOffset = App.Placement(V(0, 0, 13), App.Rotation())
sketch3.addGeometry(Part.Circle(V(0, 0, 0), V(0, 0, 1), 1), False)
sketch3.addConstraint(Sketcher.Constraint("Coincident", 0, 3, -1, 1))
sketch3.addConstraint(Sketcher.Constraint("Diameter", 0, 2.0))
pocket1 = doc.addObject("PartDesign::Pocket", "Pocket")
body.addObject(pocket1)
pocket1.Profile = sketch3
pocket1.Length = 25

# Sketch on XY plane
sketch4 = doc.addObject("Sketcher::SketchObject", "Sketch003")
body.addObject(sketch4)
sketch4.AttachmentSupport = (doc.XY_Plane, [""])
sketch4.MapMode = "FlatFace"
sketch4.AttachmentOffset = App.Placement(V(0, 0, 13), App.Rotation())
sketch4.addGeometry(Part.ArcOfCircle(Part.Circle(V(0, 0, 0), V(0, 0, 1), 1.25), math.radians(89.999998), math.radians(143.130105)), False)
sketch4.addGeometry(Part.ArcOfCircle(Part.Circle(V(0, 0, 0), V(0, 0, 1), 1.25), math.radians(36.869895), math.radians(90.000002)), False)
sketch4.addGeometry(Part.LineSegment(V(1, 0.75, 0), V(1, 76.25, 0)), False)
sketch4.addGeometry(Part.LineSegment(V(1, 76.25, 0), V(-1, 76.25, 0)), False)
sketch4.addGeometry(Part.LineSegment(V(-1, 76.25, 0), V(-1, 0.75, 0)), False)
sketch4.addConstraint(Sketcher.Constraint("Tangent", 0, 1, 1, 2))
sketch4.addConstraint(Sketcher.Constraint("Coincident", 1, 1, 2, 1))
sketch4.addConstraint(Sketcher.Constraint("Coincident", 2, 2, 3, 1))
sketch4.addConstraint(Sketcher.Constraint("Coincident", 3, 2, 4, 1))
sketch4.addConstraint(Sketcher.Constraint("Coincident", 4, 2, 0, 2))
sketch4.addConstraint(Sketcher.Constraint("Vertical", 2))
sketch4.addConstraint(Sketcher.Constraint("Horizontal", 3))
sketch4.addConstraint(Sketcher.Constraint("Vertical", 4))
sketch4.addConstraint(Sketcher.Constraint("Coincident", 0, 3, -1, 1))
sketch4.addConstraint(Sketcher.Constraint("Equal", 0, 1))
sketch4.addConstraint(Sketcher.Constraint("PointOnObject", 0, 1, -2))
sketch4.addConstraint(Sketcher.Constraint("Horizontal", 1, 1, 4, 2))
sketch4.addConstraint(Sketcher.Constraint("DistanceX", 3, 2, 3, 1, 2.0))
sketch4.addConstraint(Sketcher.Constraint("Radius", 0, 1.25))
sketch4.addConstraint(Sketcher.Constraint("DistanceY", 2, 1, 2, 2, 75.5))
pad3 = doc.addObject("PartDesign::Pad", "Pad002")
body.addObject(pad3)
pad3.Profile = sketch4
pad3.Length = 1
pad3.Reversed = True

doc.recompute()
